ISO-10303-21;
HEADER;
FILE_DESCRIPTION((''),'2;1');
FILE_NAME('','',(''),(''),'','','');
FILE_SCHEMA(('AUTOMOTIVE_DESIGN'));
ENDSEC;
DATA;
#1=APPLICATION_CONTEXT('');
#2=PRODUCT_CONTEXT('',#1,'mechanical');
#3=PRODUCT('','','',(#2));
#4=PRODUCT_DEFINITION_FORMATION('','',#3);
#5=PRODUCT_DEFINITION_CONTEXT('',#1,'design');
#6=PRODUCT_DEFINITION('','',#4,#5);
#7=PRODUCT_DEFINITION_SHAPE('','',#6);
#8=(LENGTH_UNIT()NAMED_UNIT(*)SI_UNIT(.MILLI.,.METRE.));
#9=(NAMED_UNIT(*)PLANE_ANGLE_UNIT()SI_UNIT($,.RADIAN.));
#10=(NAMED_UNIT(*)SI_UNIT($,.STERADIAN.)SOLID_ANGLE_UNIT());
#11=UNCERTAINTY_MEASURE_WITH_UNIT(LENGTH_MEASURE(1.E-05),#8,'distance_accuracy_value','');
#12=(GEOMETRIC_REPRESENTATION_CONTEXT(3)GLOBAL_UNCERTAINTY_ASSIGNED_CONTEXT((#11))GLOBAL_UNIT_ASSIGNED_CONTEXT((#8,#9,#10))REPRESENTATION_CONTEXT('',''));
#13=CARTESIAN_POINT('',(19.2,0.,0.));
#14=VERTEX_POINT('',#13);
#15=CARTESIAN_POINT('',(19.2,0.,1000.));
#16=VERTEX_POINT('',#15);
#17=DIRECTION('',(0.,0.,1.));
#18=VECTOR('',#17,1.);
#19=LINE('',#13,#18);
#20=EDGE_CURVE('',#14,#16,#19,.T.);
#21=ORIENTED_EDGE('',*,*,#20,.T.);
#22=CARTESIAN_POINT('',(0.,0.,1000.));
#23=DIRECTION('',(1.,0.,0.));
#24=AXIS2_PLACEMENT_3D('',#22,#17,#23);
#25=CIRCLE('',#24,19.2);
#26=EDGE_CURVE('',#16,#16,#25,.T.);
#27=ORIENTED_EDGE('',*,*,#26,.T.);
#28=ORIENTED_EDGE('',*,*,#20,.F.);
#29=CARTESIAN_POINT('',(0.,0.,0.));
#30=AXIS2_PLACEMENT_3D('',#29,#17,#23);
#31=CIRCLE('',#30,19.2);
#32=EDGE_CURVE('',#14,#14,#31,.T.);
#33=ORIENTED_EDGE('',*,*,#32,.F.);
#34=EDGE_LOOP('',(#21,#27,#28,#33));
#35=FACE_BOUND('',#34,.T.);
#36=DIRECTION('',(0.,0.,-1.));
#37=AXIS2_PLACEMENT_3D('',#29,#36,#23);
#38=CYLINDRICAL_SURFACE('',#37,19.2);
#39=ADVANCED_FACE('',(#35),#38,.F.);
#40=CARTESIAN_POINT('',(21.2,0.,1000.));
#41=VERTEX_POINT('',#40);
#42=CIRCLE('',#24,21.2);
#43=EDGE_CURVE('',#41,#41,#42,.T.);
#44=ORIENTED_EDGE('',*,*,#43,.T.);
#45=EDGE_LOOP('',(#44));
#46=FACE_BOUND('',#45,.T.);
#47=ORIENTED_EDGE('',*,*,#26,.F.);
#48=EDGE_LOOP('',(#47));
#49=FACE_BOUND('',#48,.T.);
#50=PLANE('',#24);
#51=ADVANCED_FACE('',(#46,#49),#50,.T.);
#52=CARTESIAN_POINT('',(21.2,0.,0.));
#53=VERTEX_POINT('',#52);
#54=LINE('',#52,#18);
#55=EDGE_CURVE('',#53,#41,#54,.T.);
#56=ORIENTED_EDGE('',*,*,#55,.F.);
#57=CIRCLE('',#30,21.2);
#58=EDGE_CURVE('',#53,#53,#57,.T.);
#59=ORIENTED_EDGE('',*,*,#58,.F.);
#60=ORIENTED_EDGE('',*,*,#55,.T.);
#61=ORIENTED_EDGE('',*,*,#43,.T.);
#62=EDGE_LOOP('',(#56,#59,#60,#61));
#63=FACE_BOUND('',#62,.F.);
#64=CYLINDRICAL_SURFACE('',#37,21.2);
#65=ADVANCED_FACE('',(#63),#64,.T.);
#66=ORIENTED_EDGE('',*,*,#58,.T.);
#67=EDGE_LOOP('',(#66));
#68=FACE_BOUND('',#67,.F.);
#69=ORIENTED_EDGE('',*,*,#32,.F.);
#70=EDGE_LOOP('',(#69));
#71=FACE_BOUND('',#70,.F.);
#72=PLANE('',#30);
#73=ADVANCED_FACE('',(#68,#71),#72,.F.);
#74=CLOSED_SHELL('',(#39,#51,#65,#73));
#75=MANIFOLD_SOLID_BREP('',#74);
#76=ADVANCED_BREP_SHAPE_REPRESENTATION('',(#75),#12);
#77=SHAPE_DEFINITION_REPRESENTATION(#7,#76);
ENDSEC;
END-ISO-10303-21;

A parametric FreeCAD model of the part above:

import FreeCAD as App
import Part
import Sketcher

V = App.Vector
Q = App.Units.Quantity

doc = App.newDocument("Part")
body = doc.addObject("PartDesign::Body", "Body")

# Sketch on XY plane
sketch1 = body.newObject("Sketcher::SketchObject", "Sketch")
sketch1.AttachmentSupport = (doc.getObject("XY_Plane"), [""])
sketch1.MapMode = "FlatFace"
sketch1.addGeometry([
    Part.Circle(V(0, 0, 0), V(0, 0, 1), 21),
    Part.Circle(V(0, 0, 0), V(0, 0, 1), 19),
], False)
sketch1.addConstraint([
    Sketcher.Constraint("Coincident", 0, 3, -1, 1),
    Sketcher.Constraint("Coincident", 1, 3, -1, 1),
    Sketcher.Constraint("Diameter", 0, Q("42.4 mm")),
    Sketcher.Constraint("Diameter", 1, Q("38.4 mm")),
])
pad1 = body.newObject("PartDesign::Pad", "Pad")
pad1.Profile = sketch1
pad1.Length = 1000

doc.recompute()
